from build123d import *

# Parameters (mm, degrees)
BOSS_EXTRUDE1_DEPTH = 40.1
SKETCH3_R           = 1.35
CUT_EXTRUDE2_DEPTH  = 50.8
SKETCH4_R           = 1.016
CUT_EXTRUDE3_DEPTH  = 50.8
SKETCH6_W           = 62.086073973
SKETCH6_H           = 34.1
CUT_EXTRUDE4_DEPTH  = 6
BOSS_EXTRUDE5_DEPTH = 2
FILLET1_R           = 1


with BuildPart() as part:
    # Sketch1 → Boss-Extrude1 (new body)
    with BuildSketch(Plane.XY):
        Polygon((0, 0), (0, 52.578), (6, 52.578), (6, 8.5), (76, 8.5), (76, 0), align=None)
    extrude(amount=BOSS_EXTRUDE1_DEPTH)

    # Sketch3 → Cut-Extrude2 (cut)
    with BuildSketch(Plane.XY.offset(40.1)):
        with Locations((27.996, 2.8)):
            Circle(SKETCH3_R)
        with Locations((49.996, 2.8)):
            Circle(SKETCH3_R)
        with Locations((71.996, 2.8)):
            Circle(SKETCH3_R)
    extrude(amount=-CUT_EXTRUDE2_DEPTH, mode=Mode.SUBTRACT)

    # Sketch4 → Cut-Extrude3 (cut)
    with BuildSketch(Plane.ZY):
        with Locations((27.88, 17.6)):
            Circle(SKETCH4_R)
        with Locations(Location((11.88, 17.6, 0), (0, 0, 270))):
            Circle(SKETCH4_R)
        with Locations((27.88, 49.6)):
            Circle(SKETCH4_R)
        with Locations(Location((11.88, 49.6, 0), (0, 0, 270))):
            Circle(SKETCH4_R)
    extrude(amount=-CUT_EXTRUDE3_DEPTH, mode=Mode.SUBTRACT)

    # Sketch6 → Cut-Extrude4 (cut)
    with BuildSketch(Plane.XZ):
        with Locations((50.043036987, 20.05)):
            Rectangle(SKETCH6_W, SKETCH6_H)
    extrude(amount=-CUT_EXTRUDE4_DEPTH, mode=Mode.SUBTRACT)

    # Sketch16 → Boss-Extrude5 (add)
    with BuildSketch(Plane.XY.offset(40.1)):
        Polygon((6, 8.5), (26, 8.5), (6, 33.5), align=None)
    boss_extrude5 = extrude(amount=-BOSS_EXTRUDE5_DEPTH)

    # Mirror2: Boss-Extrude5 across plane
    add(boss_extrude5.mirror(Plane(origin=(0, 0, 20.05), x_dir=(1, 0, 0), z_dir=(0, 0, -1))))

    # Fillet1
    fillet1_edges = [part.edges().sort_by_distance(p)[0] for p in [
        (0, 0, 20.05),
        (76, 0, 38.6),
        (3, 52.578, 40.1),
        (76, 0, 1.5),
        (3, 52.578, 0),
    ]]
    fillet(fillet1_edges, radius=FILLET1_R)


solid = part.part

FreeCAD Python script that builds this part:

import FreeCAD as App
import Part
import Sketcher
Q = App.Units.Quantity


def edges_at(feature, points):
    """Names of the edges that pass closest to the given points."""
    edges = feature.Shape.Edges
    near = lambda p: min(range(len(edges)), key=lambda i: edges[i].distToShape(Part.Vertex(*p))[0])
    return sorted({f"Edge{near(p) + 1}" for p in points})


def add_polygon(sketch, points):
    """Adds a closed chain of lines whose ends are joined by coincident constraints."""
    first, n = sketch.GeometryCount, len(points)
    for a, b in zip(points, points[1:] + points[:1]):
        sketch.addGeometry(Part.LineSegment(App.Vector(*a, 0), App.Vector(*b, 0)), False)
    for i in range(n):
        sketch.addConstraint(Sketcher.Constraint("Coincident", first + i, 2, first + (i + 1) % n, 1))

doc = App.newDocument("Part")
body = doc.addObject("PartDesign::Body", "Body")

sketch1 = doc.addObject("Sketcher::SketchObject", "Sketch")
body.addObject(sketch1)
sketch1.AttachmentSupport = (doc.XY_Plane, [""])
sketch1.MapMode = "FlatFace"
add_polygon(sketch1, [(0, 52.578), (0, 0), (76, 0), (76, 8.5), (6, 8.5), (6, 52.578)])
sketch1.addConstraint([
    Sketcher.Constraint("Vertical", 0),
    Sketcher.Constraint("Horizontal", 1),
    Sketcher.Constraint("Vertical", 2),
    Sketcher.Constraint("Horizontal", 3),
    Sketcher.Constraint("Vertical", 4),
    Sketcher.Constraint("Horizontal", 5),
    Sketcher.Constraint("Coincident", 0, 2, -1, 1),
    Sketcher.Constraint("DistanceX", 1, 1, 1, 2, Q("76 mm")),
    Sketcher.Constraint("DistanceX", 3, 2, 3, 1, Q("70 mm")),
    Sketcher.Constraint("DistanceY", 2, 1, 2, 2, Q("8.5 mm")),
    Sketcher.Constraint("DistanceY", 0, 2, 0, 1, Q("52.578 mm")),
])
pad1 = doc.addObject("PartDesign::Pad", "Pad")
body.addObject(pad1)
pad1.Profile = sketch1
pad1.Length = 40.1

sketch2 = doc.addObject("Sketcher::SketchObject", "Sketch001")
body.addObject(sketch2)
sketch2.AttachmentSupport = (doc.XY_Plane, [""])
sketch2.MapMode = "FlatFace"
sketch2.AttachmentOffset = App.Placement(App.Vector(0, 0, 40.1), App.Rotation())
sketch2.addGeometry([
    Part.Circle(App.Vector(27.996, 2.8, 0), App.Vector(0, 0, 1), 1.35),
    Part.Circle(App.Vector(49.996, 2.8, 0), App.Vector(0, 0, 1), 1.35),
    Part.Circle(App.Vector(71.996, 2.8, 0), App.Vector(0, 0, 1), 1.35),
], False)
sketch2.addConstraint([
    Sketcher.Constraint("Equal", 0, 1),
    Sketcher.Constraint("Equal", 1, 2),
    Sketcher.Constraint("Horizontal", 0, 3, 1, 3),
    Sketcher.Constraint("Horizontal", 1, 3, 2, 3),
    Sketcher.Constraint("Diameter", 0, Q("2.7 mm")),
    Sketcher.Constraint("DistanceX", 0, 3, 1, 3, Q("22 mm")),
    Sketcher.Constraint("DistanceX", 1, 3, 2, 3, Q("22 mm")),
    Sketcher.Constraint("DistanceY", -1, 1, 0, 3, Q("2.8 mm")),
    Sketcher.Constraint("DistanceX", -1, 1, 0, 3, Q("27.996 mm")),
])
pocket1 = doc.addObject("PartDesign::Pocket", "Pocket")
body.addObject(pocket1)
pocket1.Profile = sketch2
pocket1.Length = 50.8

sketch3 = doc.addObject("Sketcher::SketchObject", "Sketch002")
body.addObject(sketch3)
sketch3.AttachmentSupport = (doc.YZ_Plane, [""])
sketch3.MapMode = "FlatFace"
sketch3.addGeometry([
    Part.Circle(App.Vector(17.6, 27.88, 0), App.Vector(0, 0, 1), 1.016),
    Part.Circle(App.Vector(17.6, 11.88, 0), App.Vector(0, 0, 1), 1.016),
    Part.Circle(App.Vector(49.6, 27.88, 0), App.Vector(0, 0, 1), 1.016),
    Part.Circle(App.Vector(49.6, 11.88, 0), App.Vector(0, 0, 1), 1.016),
], False)
sketch3.addConstraint([
    Sketcher.Constraint("Equal", 0, 1),
    Sketcher.Constraint("Equal", 1, 2),
    Sketcher.Constraint("Equal", 2, 3),
    Sketcher.Constraint("Horizontal", 0, 3, 2, 3),
    Sketcher.Constraint("Horizontal", 1, 3, 3, 3),
    Sketcher.Constraint("Vertical", 0, 3, 1, 3),
    Sketcher.Constraint("Vertical", 2, 3, 3, 3),
    Sketcher.Constraint("Diameter", 0, Q("2.032 mm")),
    Sketcher.Constraint("DistanceY", 1, 3, 0, 3, Q("16 mm")),
    Sketcher.Constraint("DistanceX", 0, 3, 2, 3, Q("32 mm")),
    Sketcher.Constraint("DistanceX", -1, 1, 0, 3, Q("17.6 mm")),
    Sketcher.Constraint("DistanceY", -1, 1, 0, 3, Q("27.88 mm")),
])
pocket2 = doc.addObject("PartDesign::Pocket", "Pocket001")
body.addObject(pocket2)
pocket2.Profile = sketch3
pocket2.Length = 50.8
pocket2.Reversed = True

sketch4 = doc.addObject("Sketcher::SketchObject", "Sketch003")
body.addObject(sketch4)
sketch4.AttachmentSupport = (doc.XZ_Plane, [""])
sketch4.MapMode = "FlatFace"
add_polygon(sketch4, [(19, 37.1), (19, 3), (81.086074, 3), (81.086074, 37.1)])
sketch4.addConstraint([
    Sketcher.Constraint("Vertical", 0),
    Sketcher.Constraint("Horizontal", 1),
    Sketcher.Constraint("Vertical", 2),
    Sketcher.Constraint("Horizontal", 3),
    Sketcher.Constraint("DistanceY", 0, 2, 0, 1, Q("34.1 mm")),
    Sketcher.Constraint("DistanceX", -1, 1, 0, 2, Q("19 mm")),
    Sketcher.Constraint("DistanceY", -1, 1, 0, 2, Q("3 mm")),
    Sketcher.Constraint("DistanceX", 1, 1, 1, 2, Q("62.086074 mm")),
])
pocket3 = doc.addObject("PartDesign::Pocket", "Pocket002")
body.addObject(pocket3)
pocket3.Profile = sketch4
pocket3.Length = 6

sketch5 = doc.addObject("Sketcher::SketchObject", "Sketch004")
body.addObject(sketch5)
sketch5.AttachmentSupport = (doc.XY_Plane, [""])
sketch5.MapMode = "FlatFace"
sketch5.AttachmentOffset = App.Placement(App.Vector(0, 0, 40.1), App.Rotation())
add_polygon(sketch5, [(6, 8.5), (26, 8.5), (6, 33.5)])
sketch5.addConstraint([
    Sketcher.Constraint("Horizontal", 0),
    Sketcher.Constraint("Vertical", 2),
    Sketcher.Constraint("DistanceX", 0, 1, 0, 2, Q("20 mm")),
    Sketcher.Constraint("DistanceY", 2, 2, 2, 1, Q("25 mm")),
    Sketcher.Constraint("DistanceX", -1, 1, 0, 2, Q("26 mm")),
    Sketcher.Constraint("DistanceY", -1, 1, 0, 2, Q("8.5 mm")),
])
pad2 = doc.addObject("PartDesign::Pad", "Pad001")
body.addObject(pad2)
pad2.Profile = sketch5
pad2.Length = 2
pad2.Reversed = True
doc.recompute()

datumplane = doc.addObject("PartDesign::Plane", "DatumPlane")
body.addObject(datumplane)
datumplane.AttachmentSupport = (doc.XY_Plane, [""])
datumplane.MapMode = "FlatFace"
datumplane.AttachmentOffset = App.Placement(App.Vector(0, 0, 20.05), App.Rotation())
mirrored = doc.addObject("PartDesign::Mirrored", "Mirrored")
body.addObject(mirrored)
mirrored.Originals = [pad2]
mirrored.MirrorPlane = (datumplane, [""])
body.Tip = mirrored
doc.recompute()

fillet = doc.addObject("PartDesign::Fillet", "Fillet")
body.addObject(fillet)
fillet.Base = (mirrored, edges_at(mirrored, [
    (0, 0, 20.05),
    (76, 0, 38.6),
    (3, 52.578, 40.1),
    (76, 0, 1.5),
    (3, 52.578, 0),
]))
fillet.Radius = 1

doc.recompute()
